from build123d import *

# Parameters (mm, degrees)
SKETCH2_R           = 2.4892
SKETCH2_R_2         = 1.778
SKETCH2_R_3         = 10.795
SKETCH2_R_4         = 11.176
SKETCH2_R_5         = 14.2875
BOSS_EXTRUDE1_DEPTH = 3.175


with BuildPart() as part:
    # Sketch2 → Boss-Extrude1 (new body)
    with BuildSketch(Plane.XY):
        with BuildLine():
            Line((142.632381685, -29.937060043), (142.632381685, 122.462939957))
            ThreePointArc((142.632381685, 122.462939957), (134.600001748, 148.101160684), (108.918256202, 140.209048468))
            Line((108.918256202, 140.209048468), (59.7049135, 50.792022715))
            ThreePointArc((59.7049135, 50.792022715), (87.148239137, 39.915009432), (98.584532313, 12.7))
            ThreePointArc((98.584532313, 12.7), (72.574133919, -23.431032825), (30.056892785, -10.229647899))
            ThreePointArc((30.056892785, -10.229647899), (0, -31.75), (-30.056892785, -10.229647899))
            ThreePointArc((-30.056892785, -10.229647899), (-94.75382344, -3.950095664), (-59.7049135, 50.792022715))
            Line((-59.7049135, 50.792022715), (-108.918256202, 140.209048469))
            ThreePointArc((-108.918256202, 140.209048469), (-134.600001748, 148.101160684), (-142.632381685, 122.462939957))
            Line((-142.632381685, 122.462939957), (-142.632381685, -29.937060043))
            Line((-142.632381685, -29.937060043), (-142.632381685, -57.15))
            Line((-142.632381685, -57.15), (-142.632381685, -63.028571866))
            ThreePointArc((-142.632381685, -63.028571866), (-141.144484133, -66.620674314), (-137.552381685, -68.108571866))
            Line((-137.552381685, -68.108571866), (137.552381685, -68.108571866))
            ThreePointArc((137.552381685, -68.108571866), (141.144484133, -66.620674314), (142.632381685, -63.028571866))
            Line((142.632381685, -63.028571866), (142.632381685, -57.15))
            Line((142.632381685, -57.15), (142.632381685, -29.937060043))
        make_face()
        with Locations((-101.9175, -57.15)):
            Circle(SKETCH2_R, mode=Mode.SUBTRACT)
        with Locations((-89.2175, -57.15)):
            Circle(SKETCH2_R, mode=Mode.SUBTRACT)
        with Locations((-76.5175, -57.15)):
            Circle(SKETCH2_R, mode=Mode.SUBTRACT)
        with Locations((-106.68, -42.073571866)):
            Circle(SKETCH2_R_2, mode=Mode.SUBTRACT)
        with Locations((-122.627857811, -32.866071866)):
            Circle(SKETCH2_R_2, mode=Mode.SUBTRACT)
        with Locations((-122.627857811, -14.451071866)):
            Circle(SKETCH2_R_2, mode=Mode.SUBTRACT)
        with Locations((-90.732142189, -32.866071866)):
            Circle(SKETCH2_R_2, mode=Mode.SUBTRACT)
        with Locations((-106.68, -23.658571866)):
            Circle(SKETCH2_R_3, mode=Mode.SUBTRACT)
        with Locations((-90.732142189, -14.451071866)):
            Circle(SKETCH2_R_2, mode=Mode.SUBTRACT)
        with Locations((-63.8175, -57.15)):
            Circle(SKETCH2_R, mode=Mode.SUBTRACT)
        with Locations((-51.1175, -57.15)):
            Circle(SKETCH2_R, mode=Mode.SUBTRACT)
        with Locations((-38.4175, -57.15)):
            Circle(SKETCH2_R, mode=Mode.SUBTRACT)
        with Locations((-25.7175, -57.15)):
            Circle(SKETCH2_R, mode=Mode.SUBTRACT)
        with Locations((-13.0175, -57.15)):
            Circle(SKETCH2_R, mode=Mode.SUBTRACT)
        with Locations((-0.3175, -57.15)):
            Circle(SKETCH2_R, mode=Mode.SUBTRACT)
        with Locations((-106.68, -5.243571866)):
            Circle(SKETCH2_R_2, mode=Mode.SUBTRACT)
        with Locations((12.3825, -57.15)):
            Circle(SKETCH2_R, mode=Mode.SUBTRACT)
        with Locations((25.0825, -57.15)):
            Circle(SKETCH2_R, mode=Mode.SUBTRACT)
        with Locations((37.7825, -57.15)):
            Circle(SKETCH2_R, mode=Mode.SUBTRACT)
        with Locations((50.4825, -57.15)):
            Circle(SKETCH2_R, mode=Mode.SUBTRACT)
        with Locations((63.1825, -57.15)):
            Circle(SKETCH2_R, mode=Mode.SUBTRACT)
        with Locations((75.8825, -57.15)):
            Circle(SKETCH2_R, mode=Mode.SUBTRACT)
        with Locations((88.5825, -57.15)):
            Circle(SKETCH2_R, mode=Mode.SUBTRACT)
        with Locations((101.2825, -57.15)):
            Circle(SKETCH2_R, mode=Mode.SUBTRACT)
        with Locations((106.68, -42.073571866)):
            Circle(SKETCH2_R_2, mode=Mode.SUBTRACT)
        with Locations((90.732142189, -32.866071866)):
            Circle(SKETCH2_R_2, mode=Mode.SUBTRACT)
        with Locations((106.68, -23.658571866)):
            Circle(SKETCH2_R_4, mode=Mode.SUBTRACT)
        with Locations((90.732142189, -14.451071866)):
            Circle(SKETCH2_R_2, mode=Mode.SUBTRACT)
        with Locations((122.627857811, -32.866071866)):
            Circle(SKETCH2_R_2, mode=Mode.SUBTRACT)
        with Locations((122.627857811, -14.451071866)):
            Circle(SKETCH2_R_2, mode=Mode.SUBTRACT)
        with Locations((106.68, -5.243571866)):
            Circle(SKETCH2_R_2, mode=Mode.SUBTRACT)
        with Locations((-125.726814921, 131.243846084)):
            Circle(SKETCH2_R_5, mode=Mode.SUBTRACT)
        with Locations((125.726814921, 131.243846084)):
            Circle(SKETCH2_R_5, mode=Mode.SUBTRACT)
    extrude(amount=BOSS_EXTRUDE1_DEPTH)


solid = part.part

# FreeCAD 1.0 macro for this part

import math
import FreeCAD as App
import Part
import Sketcher
Q = App.Units.Quantity

doc = App.newDocument("Part")
body = doc.addObject("PartDesign::Body", "Body")

# Sketch on XY plane
sketch1 = doc.addObject("Sketcher::SketchObject", "Sketch")
body.addObject(sketch1)
sketch1.AttachmentSupport = (doc.XY_Plane, [""])
sketch1.MapMode = "FlatFace"
sketch1.addGeometry(Part.ArcOfCircle(Part.Circle(App.Vector(125.7, 131.2, 0), App.Vector(0, 0, 1), 19.1), math.radians(-27), math.radians(152)), False)
sketch1.addGeometry(Part.LineSegment(App.Vector(108.9, 140.2, 0), App.Vector(59.7, 50.8, 0)), False)
sketch1.addGeometry(Part.ArcOfCircle(Part.Circle(App.Vector(60.5, 12.7, 0), App.Vector(0, 0, 1), 38.1), math.radians(0), math.radians(91)), False)
sketch1.addGeometry(Part.ArcOfCircle(Part.Circle(App.Vector(60.5, 12.7, 0), App.Vector(0, 0, 1), 38.1), math.radians(-143), math.radians(0)), False)
sketch1.addGeometry(Part.ArcOfCircle(Part.Circle(App.Vector(0, 0, 0), App.Vector(0, 0, 1), 31.8), math.radians(-161), math.radians(-19)), False)
sketch1.addGeometry(Part.ArcOfCircle(Part.Circle(App.Vector(-60.5, 12.7, 0), App.Vector(0, 0, 1), 38.1), math.radians(89), math.radians(323)), False)
sketch1.addGeometry(Part.LineSegment(App.Vector(-59.7, 50.8, 0), App.Vector(-108.9, 140.2, 0)), False)
sketch1.addGeometry(Part.ArcOfCircle(Part.Circle(App.Vector(-125.7, 131.2, 0), App.Vector(0, 0, 1), 19.1), math.radians(28), math.radians(207)), False)
sketch1.addGeometry(Part.LineSegment(App.Vector(-142.6, 122.5, 0), App.Vector(-142.6, -63, 0)), False)
sketch1.addGeometry(Part.ArcOfCircle(Part.Circle(App.Vector(-137.6, -63, 0), App.Vector(0, 0, 1), 5.1), math.radians(-180), math.radians(-90)), False)
sketch1.addGeometry(Part.LineSegment(App.Vector(-137.6, -68.1, 0), App.Vector(137.6, -68.1, 0)), False)
sketch1.addGeometry(Part.ArcOfCircle(Part.Circle(App.Vector(137.6, -63, 0), App.Vector(0, 0, 1), 5.1), math.radians(-90), math.radians(0)), False)
sketch1.addGeometry(Part.LineSegment(App.Vector(142.6, -63, 0), App.Vector(142.6, 122.5, 0)), False)
sketch1.addGeometry(Part.Circle(App.Vector(-106.7, -42.1, 0), App.Vector(0, 0, 1), 1.8), False)
sketch1.addGeometry(Part.Circle(App.Vector(-101.9, -57.1, 0), App.Vector(0, 0, 1), 2.5), False)
sketch1.addGeometry(Part.Circle(App.Vector(-89.2, -57.1, 0), App.Vector(0, 0, 1), 2.5), False)
sketch1.addGeometry(Part.Circle(App.Vector(-76.5, -57.1, 0), App.Vector(0, 0, 1), 2.5), False)
sketch1.addGeometry(Part.Circle(App.Vector(-122.6, -32.9, 0), App.Vector(0, 0, 1), 1.8), False)
sketch1.addGeometry(Part.Circle(App.Vector(-106.7, -23.7, 0), App.Vector(0, 0, 1), 10.8), False)
sketch1.addGeometry(Part.Circle(App.Vector(-122.6, -14.5, 0), App.Vector(0, 0, 1), 1.8), False)
sketch1.addGeometry(Part.Circle(App.Vector(-90.7, -32.9, 0), App.Vector(0, 0, 1), 1.8), False)
sketch1.addGeometry(Part.Circle(App.Vector(-90.7, -14.5, 0), App.Vector(0, 0, 1), 1.8), False)
sketch1.addGeometry(Part.Circle(App.Vector(-63.8, -57.1, 0), App.Vector(0, 0, 1), 2.5), False)
sketch1.addGeometry(Part.Circle(App.Vector(-51.1, -57.1, 0), App.Vector(0, 0, 1), 2.5), False)
sketch1.addGeometry(Part.Circle(App.Vector(-38.4, -57.1, 0), App.Vector(0, 0, 1), 2.5), False)
sketch1.addGeometry(Part.Circle(App.Vector(-25.7, -57.1, 0), App.Vector(0, 0, 1), 2.5), False)
sketch1.addGeometry(Part.Circle(App.Vector(-13, -57.1, 0), App.Vector(0, 0, 1), 2.5), False)
sketch1.addGeometry(Part.Circle(App.Vector(-0.3, -57.1, 0), App.Vector(0, 0, 1), 2.5), False)
sketch1.addGeometry(Part.Circle(App.Vector(-106.7, -5.2, 0), App.Vector(0, 0, 1), 1.8), False)
sketch1.addGeometry(Part.Circle(App.Vector(12.4, -57.1, 0), App.Vector(0, 0, 1), 2.5), False)
sketch1.addGeometry(Part.Circle(App.Vector(25.1, -57.1, 0), App.Vector(0, 0, 1), 2.5), False)
sketch1.addGeometry(Part.Circle(App.Vector(37.8, -57.1, 0), App.Vector(0, 0, 1), 2.5), False)
sketch1.addGeometry(Part.Circle(App.Vector(50.5, -57.1, 0), App.Vector(0, 0, 1), 2.5), False)
sketch1.addGeometry(Part.Circle(App.Vector(63.2, -57.1, 0), App.Vector(0, 0, 1), 2.5), False)
sketch1.addGeometry(Part.Circle(App.Vector(75.9, -57.1, 0), App.Vector(0, 0, 1), 2.5), False)
sketch1.addGeometry(Part.Circle(App.Vector(88.6, -57.1, 0), App.Vector(0, 0, 1), 2.5), False)
sketch1.addGeometry(Part.Circle(App.Vector(101.3, -57.1, 0), App.Vector(0, 0, 1), 2.5), False)
sketch1.addGeometry(Part.Circle(App.Vector(106.7, -42.1, 0), App.Vector(0, 0, 1), 1.8), False)
sketch1.addGeometry(Part.Circle(App.Vector(90.7, -32.9, 0), App.Vector(0, 0, 1), 1.8), False)
sketch1.addGeometry(Part.Circle(App.Vector(90.7, -14.5, 0), App.Vector(0, 0, 1), 1.8), False)
sketch1.addGeometry(Part.Circle(App.Vector(106.7, -23.7, 0), App.Vector(0, 0, 1), 11.2), False)
sketch1.addGeometry(Part.Circle(App.Vector(122.6, -32.9, 0), App.Vector(0, 0, 1), 1.8), False)
sketch1.addGeometry(Part.Circle(App.Vector(122.6, -14.5, 0), App.Vector(0, 0, 1), 1.8), False)
sketch1.addGeometry(Part.Circle(App.Vector(106.7, -5.2, 0), App.Vector(0, 0, 1), 1.8), False)
sketch1.addGeometry(Part.Circle(App.Vector(-125.7, 131.2, 0), App.Vector(0, 0, 1), 14.3), False)
sketch1.addGeometry(Part.Circle(App.Vector(125.7, 131.2, 0), App.Vector(0, 0, 1), 14.3), False)
sketch1.addConstraint(Sketcher.Constraint("Coincident", 0, 2, 1, 1))
sketch1.addConstraint(Sketcher.Constraint("Coincident", 1, 2, 2, 2))
sketch1.addConstraint(Sketcher.Constraint("Tangent", 2, 1, 3, 2))
sketch1.addConstraint(Sketcher.Constraint("Coincident", 3, 1, 4, 2))
sketch1.addConstraint(Sketcher.Constraint("Coincident", 4, 1, 5, 2))
sketch1.addConstraint(Sketcher.Constraint("Coincident", 5, 1, 6, 1))
sketch1.addConstraint(Sketcher.Constraint("Coincident", 6, 2, 7, 1))
sketch1.addConstraint(Sketcher.Constraint("Coincident", 7, 2, 8, 1))
sketch1.addConstraint(Sketcher.Constraint("Tangent", 8, 2, 9, 1))
sketch1.addConstraint(Sketcher.Constraint("Tangent", 9, 2, 10, 1))
sketch1.addConstraint(Sketcher.Constraint("Tangent", 10, 2, 11, 1))
sketch1.addConstraint(Sketcher.Constraint("Tangent", 11, 2, 12, 1))
sketch1.addConstraint(Sketcher.Constraint("Coincident", 12, 2, 0, 1))
sketch1.addConstraint(Sketcher.Constraint("Vertical", 8))
sketch1.addConstraint(Sketcher.Constraint("Horizontal", 10))
sketch1.addConstraint(Sketcher.Constraint("Vertical", 12))
sketch1.addConstraint(Sketcher.Constraint("Coincident", 4, 3, -1, 1))
sketch1.addConstraint(Sketcher.Constraint("Coincident", 44, 3, 7, 3))
sketch1.addConstraint(Sketcher.Constraint("Coincident", 45, 3, 0, 3))
sketch1.addConstraint(Sketcher.Constraint("Equal", 2, 3))
sketch1.addConstraint(Sketcher.Constraint("Equal", 3, 5))
sketch1.addConstraint(Sketcher.Constraint("Equal", 0, 7))
sketch1.addConstraint(Sketcher.Constraint("Equal", 9, 11))
sketch1.addConstraint(Sketcher.Constraint("Equal", 14, 15))
sketch1.addConstraint(Sketcher.Constraint("Equal", 15, 16))
sketch1.addConstraint(Sketcher.Constraint("Equal", 13, 17))
sketch1.addConstraint(Sketcher.Constraint("Equal", 17, 19))
sketch1.addConstraint(Sketcher.Constraint("Equal", 19, 20))
sketch1.addConstraint(Sketcher.Constraint("Equal", 20, 21))
sketch1.addConstraint(Sketcher.Constraint("Equal", 16, 22))
sketch1.addConstraint(Sketcher.Constraint("Equal", 22, 23))
sketch1.addConstraint(Sketcher.Constraint("Equal", 23, 24))
sketch1.addConstraint(Sketcher.Constraint("Equal", 24, 25))
sketch1.addConstraint(Sketcher.Constraint("Equal", 25, 26))
sketch1.addConstraint(Sketcher.Constraint("Equal", 26, 27))
sketch1.addConstraint(Sketcher.Constraint("Equal", 21, 28))
sketch1.addConstraint(Sketcher.Constraint("Equal", 27, 29))
sketch1.addConstraint(Sketcher.Constraint("Equal", 29, 30))
sketch1.addConstraint(Sketcher.Constraint("Equal", 30, 31))
sketch1.addConstraint(Sketcher.Constraint("Equal", 31, 32))
sketch1.addConstraint(Sketcher.Constraint("Equal", 32, 33))
sketch1.addConstraint(Sketcher.Constraint("Equal", 33, 34))
sketch1.addConstraint(Sketcher.Constraint("Equal", 34, 35))
sketch1.addConstraint(Sketcher.Constraint("Equal", 35, 36))
sketch1.addConstraint(Sketcher.Constraint("Equal", 28, 37))
sketch1.addConstraint(Sketcher.Constraint("Equal", 37, 38))
sketch1.addConstraint(Sketcher.Constraint("Equal", 38, 39))
sketch1.addConstraint(Sketcher.Constraint("Equal", 39, 41))
sketch1.addConstraint(Sketcher.Constraint("Equal", 41, 42))
sketch1.addConstraint(Sketcher.Constraint("Equal", 42, 43))
sketch1.addConstraint(Sketcher.Constraint("Equal", 44, 45))
sketch1.addConstraint(Sketcher.Constraint("Symmetric", 2, 3, 5, 3, -2))
sketch1.addConstraint(Sketcher.Constraint("Symmetric", 0, 3, 7, 3, -2))
sketch1.addConstraint(Sketcher.Constraint("Symmetric", 13, 3, 37, 3, -2))
sketch1.addConstraint(Sketcher.Constraint("Symmetric", 20, 3, 38, 3, -2))
sketch1.addConstraint(Sketcher.Constraint("Symmetric", 21, 3, 39, 3, -2))
sketch1.addConstraint(Sketcher.Constraint("Symmetric", 18, 3, 40, 3, -2))
sketch1.addConstraint(Sketcher.Constraint("Symmetric", 17, 3, 41, 3, -2))
sketch1.addConstraint(Sketcher.Constraint("Symmetric", 19, 3, 42, 3, -2))
sketch1.addConstraint(Sketcher.Constraint("Symmetric", 28, 3, 43, 3, -2))
sketch1.addConstraint(Sketcher.Constraint("Horizontal", 14, 3, 15, 3))
sketch1.addConstraint(Sketcher.Constraint("Horizontal", 15, 3, 16, 3))
sketch1.addConstraint(Sketcher.Constraint("Horizontal", 17, 3, 20, 3))
sketch1.addConstraint(Sketcher.Constraint("Horizontal", 19, 3, 21, 3))
sketch1.addConstraint(Sketcher.Constraint("Horizontal", 16, 3, 22, 3))
sketch1.addConstraint(Sketcher.Constraint("Horizontal", 22, 3, 23, 3))
sketch1.addConstraint(Sketcher.Constraint("Horizontal", 23, 3, 24, 3))
sketch1.addConstraint(Sketcher.Constraint("Horizontal", 24, 3, 25, 3))
sketch1.addConstraint(Sketcher.Constraint("Horizontal", 25, 3, 26, 3))
sketch1.addConstraint(Sketcher.Constraint("Horizontal", 26, 3, 27, 3))
sketch1.addConstraint(Sketcher.Constraint("Horizontal", 27, 3, 29, 3))
sketch1.addConstraint(Sketcher.Constraint("Horizontal", 29, 3, 30, 3))
sketch1.addConstraint(Sketcher.Constraint("Horizontal", 30, 3, 31, 3))
sketch1.addConstraint(Sketcher.Constraint("Horizontal", 31, 3, 32, 3))
sketch1.addConstraint(Sketcher.Constraint("Horizontal", 32, 3, 33, 3))
sketch1.addConstraint(Sketcher.Constraint("Horizontal", 33, 3, 34, 3))
sketch1.addConstraint(Sketcher.Constraint("Horizontal", 34, 3, 35, 3))
sketch1.addConstraint(Sketcher.Constraint("Horizontal", 35, 3, 36, 3))
sketch1.addConstraint(Sketcher.Constraint("Horizontal", 5, 3, 2, 1))
sketch1.addConstraint(Sketcher.Constraint("Horizontal", 1, 2, 5, 1))
sketch1.addConstraint(Sketcher.Constraint("Horizontal", 0, 2, 6, 2))
sketch1.addConstraint(Sketcher.Constraint("Horizontal", 7, 2, 12, 2))
sketch1.addConstraint(Sketcher.Constraint("Vertical", 13, 3, 18, 3))
sketch1.addConstraint(Sketcher.Constraint("Vertical", 17, 3, 19, 3))
sketch1.addConstraint(Sketcher.Constraint("Vertical", 20, 3, 21, 3))
sketch1.addConstraint(Sketcher.Constraint("Vertical", 18, 3, 28, 3))
sketch1.addConstraint(Sketcher.Constraint("Radius", 2, Q("1.5 in")))
sketch1.addConstraint(Sketcher.Constraint("Radius", 9, Q("0.2 in")))
sketch1.addConstraint(Sketcher.Constraint("Diameter", 13, Q("0.14 in")))
sketch1.addConstraint(Sketcher.Constraint("Diameter", 18, Q("0.85 in")))
sketch1.addConstraint(Sketcher.Constraint("Diameter", 40, Q("0.88 in")))
sketch1.addConstraint(Sketcher.Constraint("Radius", 0, Q("0.75 in")))
sketch1.addConstraint(Sketcher.Constraint("Radius", 4, Q("1.25 in")))
sketch1.addConstraint(Sketcher.Constraint("Diameter", 14, Q("0.196 in")))
sketch1.addConstraint(Sketcher.Constraint("Diameter", 44, Q("1.125 in")))
sketch1.addConstraint(Sketcher.Constraint("DistanceX", 14, 3, 16, 3, Q("1 in")))
sketch1.addConstraint(Sketcher.Constraint("DistanceX", 15, 3, 22, 3, Q("1 in")))
sketch1.addConstraint(Sketcher.Constraint("DistanceX", 16, 3, 23, 3, Q("1 in")))
sketch1.addConstraint(Sketcher.Constraint("DistanceX", 22, 3, 24, 3, Q("1 in")))
sketch1.addConstraint(Sketcher.Constraint("DistanceX", 23, 3, 25, 3, Q("1 in")))
sketch1.addConstraint(Sketcher.Constraint("DistanceX", 24, 3, 26, 3, Q("1 in")))
sketch1.addConstraint(Sketcher.Constraint("DistanceX", 25, 3, 27, 3, Q("1 in")))
sketch1.addConstraint(Sketcher.Constraint("DistanceX", 26, 3, 29, 3, Q("1 in")))
sketch1.addConstraint(Sketcher.Constraint("DistanceX", 27, 3, 30, 3, Q("1 in")))
sketch1.addConstraint(Sketcher.Constraint("DistanceX", 29, 3, 31, 3, Q("1 in")))
sketch1.addConstraint(Sketcher.Constraint("DistanceX", 30, 3, 32, 3, Q("1 in")))
sketch1.addConstraint(Sketcher.Constraint("DistanceX", 31, 3, 33, 3, Q("1 in")))
sketch1.addConstraint(Sketcher.Constraint("DistanceX", 32, 3, 34, 3, Q("1 in")))
sketch1.addConstraint(Sketcher.Constraint("DistanceX", 33, 3, 35, 3, Q("1 in")))
sketch1.addConstraint(Sketcher.Constraint("DistanceX", 34, 3, 36, 3, Q("1 in")))
sketch1.addConstraint(Sketcher.Constraint("DistanceY", -1, 1, 2, 3, Q("0.5 in")))
sketch1.addConstraint(Sketcher.Constraint("DistanceX", 13, 3, -1, 1, Q("4.2 in")))
sketch1.addConstraint(Sketcher.Constraint("DistanceX", 14, 3, 15, 3, Q("0.5 in")))
sketch1.addConstraint(Sketcher.Constraint("DistanceY", 14, 3, -1, 1, Q("2.25 in")))
sketch1.addConstraint(Sketcher.Constraint("DistanceY", 9, 3, 13, 3, Q("0.825 in")))
sketch1.addConstraint(Sketcher.Constraint("DistanceX", 13, 3, 14, 3, Q("0.1875 in")))
sketch1.addConstraint(Sketcher.Constraint("DistanceY", 9, 3, 17, 3, Q("1.1875 in")))
sketch1.addConstraint(Sketcher.Constraint("DistanceY", 13, 3, 18, 3, Q("0.725 in")))
sketch1.addConstraint(Sketcher.Constraint("DistanceY", 17, 3, 19, 3, Q("0.725 in")))
sketch1.addConstraint(Sketcher.Constraint("DistanceY", 18, 3, 28, 3, Q("0.725 in")))
sketch1.addConstraint(Sketcher.Constraint("DistanceY", 8, 2, 8, 1, Q("185.491512 mm")))
sketch1.addConstraint(Sketcher.Constraint("DistanceX", 10, 1, 10, 2, Q("275.104763 mm")))
sketch1.addConstraint(Sketcher.Constraint("DistanceY", 9, 3, -1, 1, Q("63.028572 mm")))
sketch1.addConstraint(Sketcher.Constraint("DistanceY", -1, 1, 0, 2, Q("140.209048 mm")))
sketch1.addConstraint(Sketcher.Constraint("DistanceX", 7, 3, 0, 3, Q("251.45363 mm")))
sketch1.addConstraint(Sketcher.Constraint("DistanceX", 9, 3, 5, 3, Q("77.067849 mm")))
sketch1.addConstraint(Sketcher.Constraint("DistanceX", 3, 3, 39, 3, Q("30.24761 mm")))
sketch1.addConstraint(Sketcher.Constraint("DistanceX", 1, 2, 3, 3, Q("0.779619 mm")))
sketch1.addConstraint(Sketcher.Constraint("DistanceX", 17, 3, -1, 1, Q("122.627858 mm")))
pad1 = doc.addObject("PartDesign::Pad", "Pad")
body.addObject(pad1)
pad1.Profile = sketch1
pad1.Length = Q("0.125 in")

doc.recompute()
